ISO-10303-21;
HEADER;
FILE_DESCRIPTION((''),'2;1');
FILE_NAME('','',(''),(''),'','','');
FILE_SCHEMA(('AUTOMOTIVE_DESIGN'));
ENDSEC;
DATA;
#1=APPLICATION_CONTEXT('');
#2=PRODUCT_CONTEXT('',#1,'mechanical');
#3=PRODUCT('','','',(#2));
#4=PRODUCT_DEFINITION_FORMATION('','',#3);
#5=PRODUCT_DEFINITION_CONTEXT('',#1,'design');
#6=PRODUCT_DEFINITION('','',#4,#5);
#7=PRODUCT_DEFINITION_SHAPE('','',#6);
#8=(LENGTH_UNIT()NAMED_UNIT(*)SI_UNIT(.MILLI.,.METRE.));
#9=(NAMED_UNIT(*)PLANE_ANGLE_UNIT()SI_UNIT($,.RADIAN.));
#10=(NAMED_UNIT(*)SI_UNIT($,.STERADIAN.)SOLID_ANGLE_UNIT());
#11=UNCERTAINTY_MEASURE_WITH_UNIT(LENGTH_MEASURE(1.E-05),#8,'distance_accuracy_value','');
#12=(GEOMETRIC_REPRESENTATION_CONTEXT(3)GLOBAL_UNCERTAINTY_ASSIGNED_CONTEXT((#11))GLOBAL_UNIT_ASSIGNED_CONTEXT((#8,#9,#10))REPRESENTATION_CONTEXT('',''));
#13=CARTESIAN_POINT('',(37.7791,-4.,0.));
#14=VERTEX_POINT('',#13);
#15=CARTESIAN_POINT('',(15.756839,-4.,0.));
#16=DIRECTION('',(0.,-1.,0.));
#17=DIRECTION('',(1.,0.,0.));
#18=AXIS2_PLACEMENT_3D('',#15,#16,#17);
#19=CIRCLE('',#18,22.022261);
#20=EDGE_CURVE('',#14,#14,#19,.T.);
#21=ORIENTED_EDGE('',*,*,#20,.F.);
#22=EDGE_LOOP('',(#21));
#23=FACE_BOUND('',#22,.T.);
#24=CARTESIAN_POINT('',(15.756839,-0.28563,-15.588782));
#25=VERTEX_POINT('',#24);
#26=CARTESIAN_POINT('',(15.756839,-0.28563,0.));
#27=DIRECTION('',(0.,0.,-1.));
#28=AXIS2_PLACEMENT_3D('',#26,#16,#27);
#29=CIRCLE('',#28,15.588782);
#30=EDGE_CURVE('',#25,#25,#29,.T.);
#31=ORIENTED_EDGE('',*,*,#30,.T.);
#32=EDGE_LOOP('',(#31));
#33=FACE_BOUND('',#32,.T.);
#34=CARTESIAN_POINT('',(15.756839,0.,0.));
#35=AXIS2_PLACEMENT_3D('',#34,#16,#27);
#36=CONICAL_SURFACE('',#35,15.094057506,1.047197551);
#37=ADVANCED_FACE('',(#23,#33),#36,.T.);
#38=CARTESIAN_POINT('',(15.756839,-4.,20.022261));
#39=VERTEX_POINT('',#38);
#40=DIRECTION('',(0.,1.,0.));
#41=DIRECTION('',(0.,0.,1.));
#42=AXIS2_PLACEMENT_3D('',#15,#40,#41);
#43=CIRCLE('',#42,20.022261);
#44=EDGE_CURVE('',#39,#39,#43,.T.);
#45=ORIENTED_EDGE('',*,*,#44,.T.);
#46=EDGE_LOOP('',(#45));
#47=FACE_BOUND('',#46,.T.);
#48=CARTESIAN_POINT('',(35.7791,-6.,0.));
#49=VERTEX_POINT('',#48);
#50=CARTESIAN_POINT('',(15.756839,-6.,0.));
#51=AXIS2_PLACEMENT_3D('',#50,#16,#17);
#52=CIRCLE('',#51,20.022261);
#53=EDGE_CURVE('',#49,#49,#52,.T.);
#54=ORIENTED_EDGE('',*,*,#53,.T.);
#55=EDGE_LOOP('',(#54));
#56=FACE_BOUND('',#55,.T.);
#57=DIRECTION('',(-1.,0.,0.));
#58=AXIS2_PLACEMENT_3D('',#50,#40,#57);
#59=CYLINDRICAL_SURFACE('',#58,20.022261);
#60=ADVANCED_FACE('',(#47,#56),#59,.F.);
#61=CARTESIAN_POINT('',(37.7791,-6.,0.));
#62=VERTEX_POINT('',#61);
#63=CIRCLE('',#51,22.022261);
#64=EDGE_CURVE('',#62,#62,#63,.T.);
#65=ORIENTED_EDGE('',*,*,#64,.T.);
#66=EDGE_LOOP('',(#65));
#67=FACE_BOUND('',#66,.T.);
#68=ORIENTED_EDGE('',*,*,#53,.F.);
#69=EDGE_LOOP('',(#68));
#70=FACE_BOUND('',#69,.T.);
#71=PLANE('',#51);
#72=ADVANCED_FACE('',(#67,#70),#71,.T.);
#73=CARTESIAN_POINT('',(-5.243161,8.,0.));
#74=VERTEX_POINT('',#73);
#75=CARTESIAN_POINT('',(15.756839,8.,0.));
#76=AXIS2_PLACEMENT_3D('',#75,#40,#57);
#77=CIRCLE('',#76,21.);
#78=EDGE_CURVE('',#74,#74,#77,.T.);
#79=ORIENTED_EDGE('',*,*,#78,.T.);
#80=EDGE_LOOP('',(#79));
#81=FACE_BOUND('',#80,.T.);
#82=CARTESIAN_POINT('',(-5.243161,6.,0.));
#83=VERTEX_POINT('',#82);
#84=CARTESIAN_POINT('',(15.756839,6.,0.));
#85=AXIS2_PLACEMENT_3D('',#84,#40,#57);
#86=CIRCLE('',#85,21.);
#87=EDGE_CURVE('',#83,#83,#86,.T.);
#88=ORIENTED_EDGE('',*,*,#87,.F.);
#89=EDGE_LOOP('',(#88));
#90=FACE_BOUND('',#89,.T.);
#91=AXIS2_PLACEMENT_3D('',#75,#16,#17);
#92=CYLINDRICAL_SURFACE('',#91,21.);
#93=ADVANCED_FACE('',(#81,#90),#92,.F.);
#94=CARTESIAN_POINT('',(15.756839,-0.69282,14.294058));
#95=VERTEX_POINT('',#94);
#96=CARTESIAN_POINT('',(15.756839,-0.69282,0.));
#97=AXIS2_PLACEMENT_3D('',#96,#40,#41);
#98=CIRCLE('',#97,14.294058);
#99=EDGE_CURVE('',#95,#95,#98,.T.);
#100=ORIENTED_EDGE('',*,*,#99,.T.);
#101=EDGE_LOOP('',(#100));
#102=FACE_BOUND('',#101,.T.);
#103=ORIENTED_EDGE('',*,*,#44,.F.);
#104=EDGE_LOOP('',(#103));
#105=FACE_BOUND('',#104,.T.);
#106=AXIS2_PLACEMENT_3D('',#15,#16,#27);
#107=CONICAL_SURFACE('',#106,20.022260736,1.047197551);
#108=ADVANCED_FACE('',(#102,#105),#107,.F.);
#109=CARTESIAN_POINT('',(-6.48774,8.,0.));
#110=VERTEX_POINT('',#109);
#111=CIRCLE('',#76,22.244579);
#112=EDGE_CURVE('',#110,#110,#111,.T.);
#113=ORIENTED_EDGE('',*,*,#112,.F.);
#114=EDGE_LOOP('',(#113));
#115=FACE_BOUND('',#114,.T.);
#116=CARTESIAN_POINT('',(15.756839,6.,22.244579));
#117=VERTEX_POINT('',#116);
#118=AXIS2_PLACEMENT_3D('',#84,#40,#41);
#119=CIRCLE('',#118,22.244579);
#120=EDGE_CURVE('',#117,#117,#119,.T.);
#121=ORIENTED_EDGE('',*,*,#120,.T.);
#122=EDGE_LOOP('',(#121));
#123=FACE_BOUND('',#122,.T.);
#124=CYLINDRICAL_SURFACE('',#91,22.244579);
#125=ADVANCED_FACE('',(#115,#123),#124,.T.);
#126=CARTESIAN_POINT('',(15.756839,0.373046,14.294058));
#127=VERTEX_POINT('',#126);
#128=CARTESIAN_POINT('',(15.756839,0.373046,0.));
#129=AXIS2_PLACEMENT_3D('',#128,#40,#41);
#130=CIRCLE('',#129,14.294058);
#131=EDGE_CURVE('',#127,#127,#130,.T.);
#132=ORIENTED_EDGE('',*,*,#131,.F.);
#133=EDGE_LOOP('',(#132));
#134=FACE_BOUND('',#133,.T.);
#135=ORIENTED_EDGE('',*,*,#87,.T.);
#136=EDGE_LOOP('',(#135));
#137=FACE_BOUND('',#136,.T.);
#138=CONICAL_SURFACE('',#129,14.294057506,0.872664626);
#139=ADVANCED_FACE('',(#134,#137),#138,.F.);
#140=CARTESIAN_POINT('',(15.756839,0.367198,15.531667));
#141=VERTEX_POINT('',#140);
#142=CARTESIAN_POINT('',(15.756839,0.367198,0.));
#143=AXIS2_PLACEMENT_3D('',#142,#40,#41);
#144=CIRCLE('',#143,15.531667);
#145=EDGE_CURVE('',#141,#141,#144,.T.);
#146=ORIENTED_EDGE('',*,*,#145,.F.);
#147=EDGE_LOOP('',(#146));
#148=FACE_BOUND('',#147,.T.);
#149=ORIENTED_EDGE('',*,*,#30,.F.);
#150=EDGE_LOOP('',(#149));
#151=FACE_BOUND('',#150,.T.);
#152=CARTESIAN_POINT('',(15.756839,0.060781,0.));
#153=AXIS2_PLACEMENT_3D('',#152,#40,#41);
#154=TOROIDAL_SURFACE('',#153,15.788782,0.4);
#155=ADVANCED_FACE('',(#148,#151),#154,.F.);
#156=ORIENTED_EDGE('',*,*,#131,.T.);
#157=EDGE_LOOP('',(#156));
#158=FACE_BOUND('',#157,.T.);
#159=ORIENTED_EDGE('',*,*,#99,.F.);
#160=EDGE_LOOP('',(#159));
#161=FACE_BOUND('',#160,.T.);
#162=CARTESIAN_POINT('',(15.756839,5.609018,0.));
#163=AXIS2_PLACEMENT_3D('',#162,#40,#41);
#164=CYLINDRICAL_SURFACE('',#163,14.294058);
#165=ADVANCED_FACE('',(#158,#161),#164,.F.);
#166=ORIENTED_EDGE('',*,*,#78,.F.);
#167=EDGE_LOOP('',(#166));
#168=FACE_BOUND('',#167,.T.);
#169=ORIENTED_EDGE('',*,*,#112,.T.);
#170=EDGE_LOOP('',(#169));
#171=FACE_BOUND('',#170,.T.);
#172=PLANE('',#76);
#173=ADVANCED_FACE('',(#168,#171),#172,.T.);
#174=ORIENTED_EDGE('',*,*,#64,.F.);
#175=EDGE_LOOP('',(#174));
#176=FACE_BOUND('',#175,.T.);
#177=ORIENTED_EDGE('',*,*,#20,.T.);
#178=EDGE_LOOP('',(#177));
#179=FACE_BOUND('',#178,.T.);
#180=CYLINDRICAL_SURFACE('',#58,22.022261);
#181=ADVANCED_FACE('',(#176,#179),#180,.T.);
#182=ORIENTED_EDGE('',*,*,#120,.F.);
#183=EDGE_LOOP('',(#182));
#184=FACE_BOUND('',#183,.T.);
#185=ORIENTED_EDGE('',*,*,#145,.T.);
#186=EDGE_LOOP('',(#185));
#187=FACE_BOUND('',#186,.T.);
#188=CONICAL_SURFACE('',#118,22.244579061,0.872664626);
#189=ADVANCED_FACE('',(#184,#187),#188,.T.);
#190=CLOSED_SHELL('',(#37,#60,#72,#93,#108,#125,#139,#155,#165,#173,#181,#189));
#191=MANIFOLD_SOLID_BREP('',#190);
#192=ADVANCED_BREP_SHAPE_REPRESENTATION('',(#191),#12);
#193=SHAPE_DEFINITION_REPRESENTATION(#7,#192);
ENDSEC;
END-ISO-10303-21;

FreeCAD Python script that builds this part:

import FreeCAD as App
import Part
import Sketcher

V = App.Vector
Q = App.Units.Quantity


def edges_at(feature, points):
    """Names of the edges that pass closest to the given points."""
    edges = feature.Shape.Edges
    near = lambda p: min(range(len(edges)), key=lambda i: edges[i].distToShape(Part.Vertex(*p))[0])
    return sorted({f"Edge{near(p) + 1}" for p in points})

doc = App.newDocument("Part")
body = doc.addObject("PartDesign::Body", "Body")

# Sketch on XY plane
sketch1 = body.newObject("Sketcher::SketchObject", "Sketch")
sketch1.AttachmentSupport = (doc.getObject("XY_Plane"), [""])
sketch1.MapMode = "FlatFace"
sketch1.addGeometry([
    Part.LineSegment(V(-6.5, 6, 0), V(0.7, 0, 0)),  # 0
    Part.LineSegment(V(0.7, 0, 0), V(-6.3, -4, 0)),  # 1
    Part.LineSegment(V(-6.3, -4, 0), V(-4.3, -4, 0)),  # 2
    Part.LineSegment(V(-4.3, -4, 0), V(1.5, -0.7, 0)),  # 3
    Part.LineSegment(V(1.5, -0.7, 0), V(1.5, 0.4, 0)),  # 4
    Part.LineSegment(V(1.5, 0.4, 0), V(-5.2, 6, 0)),  # 5
    Part.LineSegment(V(-5.2, 6, 0), V(-6.5, 6, 0)),  # 6
], False)
sketch1.addGeometry(Part.LineSegment(V(15.8, 6, 0), V(15.8, -4, 0)), True)  # axis
sketch1.addConstraint([
    Sketcher.Constraint("Coincident", 0, 2, 1, 1),
    Sketcher.Constraint("Coincident", 1, 2, 2, 1),
    Sketcher.Constraint("Coincident", 2, 2, 3, 1),
    Sketcher.Constraint("Coincident", 3, 2, 4, 1),
    Sketcher.Constraint("Coincident", 4, 2, 5, 1),
    Sketcher.Constraint("Coincident", 5, 2, 6, 1),
    Sketcher.Constraint("Coincident", 6, 2, 0, 1),
    Sketcher.Constraint("Horizontal", 2),
    Sketcher.Constraint("Vertical", 4),
    Sketcher.Constraint("Horizontal", 6),
    Sketcher.Constraint("Vertical", 7),
    Sketcher.Constraint("PointOnObject", 0, 2, -1),
    Sketcher.Constraint("Parallel", 1, 3),
    Sketcher.Constraint("Parallel", 0, 5),
    Sketcher.Constraint("Horizontal", 6, 2, 7, 1),
    Sketcher.Constraint("Horizontal", 2, 2, 7, 2),
    Sketcher.Constraint("DistanceX", 2, 1, 2, 2, Q("2 mm")),
    Sketcher.Constraint("DistanceY", 7, 2, 7, 1, Q("10 mm")),
    Sketcher.Constraint("Angle", 0, Q("-40 deg")),
    Sketcher.Constraint("Angle", 1, Q("-150 deg")),
    Sketcher.Constraint("Distance", 1, Q("8 mm")),
    Sketcher.Constraint("DistanceX", 5, 2, 7, 1, Q("21 mm")),
    Sketcher.Constraint("DistanceX", 0, 2, 3, 2, Q("0.8 mm")),
    Sketcher.Constraint("DistanceX", 6, 2, 6, 1, Q("1.244579 mm")),
    Sketcher.Constraint("DistanceX", -1, 1, 0, 2, Q("0.662782 mm")),
])
revolution = body.newObject("PartDesign::Revolution", "Revolution")
revolution.Profile = sketch1
revolution.ReferenceAxis = (sketch1, ["Axis0"])
revolution.Angle = 360
doc.recompute()

fillet = body.newObject("PartDesign::Fillet", "Fillet")
fillet.Base = (revolution, edges_at(revolution, [(15.757, 0, -15.094)]))
fillet.Radius = 0.4

# Sketch on XZ plane
sketch2 = body.newObject("Sketcher::SketchObject", "Sketch001")
sketch2.AttachmentSupport = (doc.getObject("XZ_Plane"), [""])
sketch2.MapMode = "FlatFace"
sketch2.AttachmentOffset = App.Placement(V(0, 0, -6), App.Rotation())
sketch2.addGeometry([
    Part.Circle(V(16, 0, 0), V(0, 0, 1), 22),
    Part.Circle(V(16, 0, 0), V(0, 0, 1), 21),
], False)
sketch2.addConstraint([
    Sketcher.Constraint("Coincident", 1, 3, 0, 3),
    Sketcher.Constraint("PointOnObject", 0, 3, -1),
    Sketcher.Constraint("Diameter", 1, Q("42 mm")),
    Sketcher.Constraint("Diameter", 0, Q("44.489158 mm")),
    Sketcher.Constraint("DistanceX", -1, 1, 0, 3, Q("15.756839 mm")),
])
pad1 = body.newObject("PartDesign::Pad", "Pad")
pad1.Profile = sketch2
pad1.Length = 2
pad1.Reversed = True

# Sketch on XZ plane
sketch3 = body.newObject("Sketcher::SketchObject", "Sketch002")
sketch3.AttachmentSupport = (doc.getObject("XZ_Plane"), [""])
sketch3.MapMode = "FlatFace"
sketch3.AttachmentOffset = App.Placement(V(0, 0, 4), App.Rotation())
sketch3.addGeometry([
    Part.Circle(V(16, 0, 0), V(0, 0, 1), 22),
    Part.Circle(V(16, 0, 0), V(0, 0, 1), 20),
], False)
sketch3.addConstraint([
    Sketcher.Constraint("Coincident", 1, 3, 0, 3),
    Sketcher.Constraint("PointOnObject", 0, 3, -1),
    Sketcher.Constraint("Diameter", 0, Q("44.044521 mm")),
    Sketcher.Constraint("Diameter", 1, Q("40.044521 mm")),
    Sketcher.Constraint("DistanceX", -1, 1, 0, 3, Q("15.756839 mm")),
])
pad2 = body.newObject("PartDesign::Pad", "Pad001")
pad2.Profile = sketch3
pad2.Length = 2

doc.recompute()
